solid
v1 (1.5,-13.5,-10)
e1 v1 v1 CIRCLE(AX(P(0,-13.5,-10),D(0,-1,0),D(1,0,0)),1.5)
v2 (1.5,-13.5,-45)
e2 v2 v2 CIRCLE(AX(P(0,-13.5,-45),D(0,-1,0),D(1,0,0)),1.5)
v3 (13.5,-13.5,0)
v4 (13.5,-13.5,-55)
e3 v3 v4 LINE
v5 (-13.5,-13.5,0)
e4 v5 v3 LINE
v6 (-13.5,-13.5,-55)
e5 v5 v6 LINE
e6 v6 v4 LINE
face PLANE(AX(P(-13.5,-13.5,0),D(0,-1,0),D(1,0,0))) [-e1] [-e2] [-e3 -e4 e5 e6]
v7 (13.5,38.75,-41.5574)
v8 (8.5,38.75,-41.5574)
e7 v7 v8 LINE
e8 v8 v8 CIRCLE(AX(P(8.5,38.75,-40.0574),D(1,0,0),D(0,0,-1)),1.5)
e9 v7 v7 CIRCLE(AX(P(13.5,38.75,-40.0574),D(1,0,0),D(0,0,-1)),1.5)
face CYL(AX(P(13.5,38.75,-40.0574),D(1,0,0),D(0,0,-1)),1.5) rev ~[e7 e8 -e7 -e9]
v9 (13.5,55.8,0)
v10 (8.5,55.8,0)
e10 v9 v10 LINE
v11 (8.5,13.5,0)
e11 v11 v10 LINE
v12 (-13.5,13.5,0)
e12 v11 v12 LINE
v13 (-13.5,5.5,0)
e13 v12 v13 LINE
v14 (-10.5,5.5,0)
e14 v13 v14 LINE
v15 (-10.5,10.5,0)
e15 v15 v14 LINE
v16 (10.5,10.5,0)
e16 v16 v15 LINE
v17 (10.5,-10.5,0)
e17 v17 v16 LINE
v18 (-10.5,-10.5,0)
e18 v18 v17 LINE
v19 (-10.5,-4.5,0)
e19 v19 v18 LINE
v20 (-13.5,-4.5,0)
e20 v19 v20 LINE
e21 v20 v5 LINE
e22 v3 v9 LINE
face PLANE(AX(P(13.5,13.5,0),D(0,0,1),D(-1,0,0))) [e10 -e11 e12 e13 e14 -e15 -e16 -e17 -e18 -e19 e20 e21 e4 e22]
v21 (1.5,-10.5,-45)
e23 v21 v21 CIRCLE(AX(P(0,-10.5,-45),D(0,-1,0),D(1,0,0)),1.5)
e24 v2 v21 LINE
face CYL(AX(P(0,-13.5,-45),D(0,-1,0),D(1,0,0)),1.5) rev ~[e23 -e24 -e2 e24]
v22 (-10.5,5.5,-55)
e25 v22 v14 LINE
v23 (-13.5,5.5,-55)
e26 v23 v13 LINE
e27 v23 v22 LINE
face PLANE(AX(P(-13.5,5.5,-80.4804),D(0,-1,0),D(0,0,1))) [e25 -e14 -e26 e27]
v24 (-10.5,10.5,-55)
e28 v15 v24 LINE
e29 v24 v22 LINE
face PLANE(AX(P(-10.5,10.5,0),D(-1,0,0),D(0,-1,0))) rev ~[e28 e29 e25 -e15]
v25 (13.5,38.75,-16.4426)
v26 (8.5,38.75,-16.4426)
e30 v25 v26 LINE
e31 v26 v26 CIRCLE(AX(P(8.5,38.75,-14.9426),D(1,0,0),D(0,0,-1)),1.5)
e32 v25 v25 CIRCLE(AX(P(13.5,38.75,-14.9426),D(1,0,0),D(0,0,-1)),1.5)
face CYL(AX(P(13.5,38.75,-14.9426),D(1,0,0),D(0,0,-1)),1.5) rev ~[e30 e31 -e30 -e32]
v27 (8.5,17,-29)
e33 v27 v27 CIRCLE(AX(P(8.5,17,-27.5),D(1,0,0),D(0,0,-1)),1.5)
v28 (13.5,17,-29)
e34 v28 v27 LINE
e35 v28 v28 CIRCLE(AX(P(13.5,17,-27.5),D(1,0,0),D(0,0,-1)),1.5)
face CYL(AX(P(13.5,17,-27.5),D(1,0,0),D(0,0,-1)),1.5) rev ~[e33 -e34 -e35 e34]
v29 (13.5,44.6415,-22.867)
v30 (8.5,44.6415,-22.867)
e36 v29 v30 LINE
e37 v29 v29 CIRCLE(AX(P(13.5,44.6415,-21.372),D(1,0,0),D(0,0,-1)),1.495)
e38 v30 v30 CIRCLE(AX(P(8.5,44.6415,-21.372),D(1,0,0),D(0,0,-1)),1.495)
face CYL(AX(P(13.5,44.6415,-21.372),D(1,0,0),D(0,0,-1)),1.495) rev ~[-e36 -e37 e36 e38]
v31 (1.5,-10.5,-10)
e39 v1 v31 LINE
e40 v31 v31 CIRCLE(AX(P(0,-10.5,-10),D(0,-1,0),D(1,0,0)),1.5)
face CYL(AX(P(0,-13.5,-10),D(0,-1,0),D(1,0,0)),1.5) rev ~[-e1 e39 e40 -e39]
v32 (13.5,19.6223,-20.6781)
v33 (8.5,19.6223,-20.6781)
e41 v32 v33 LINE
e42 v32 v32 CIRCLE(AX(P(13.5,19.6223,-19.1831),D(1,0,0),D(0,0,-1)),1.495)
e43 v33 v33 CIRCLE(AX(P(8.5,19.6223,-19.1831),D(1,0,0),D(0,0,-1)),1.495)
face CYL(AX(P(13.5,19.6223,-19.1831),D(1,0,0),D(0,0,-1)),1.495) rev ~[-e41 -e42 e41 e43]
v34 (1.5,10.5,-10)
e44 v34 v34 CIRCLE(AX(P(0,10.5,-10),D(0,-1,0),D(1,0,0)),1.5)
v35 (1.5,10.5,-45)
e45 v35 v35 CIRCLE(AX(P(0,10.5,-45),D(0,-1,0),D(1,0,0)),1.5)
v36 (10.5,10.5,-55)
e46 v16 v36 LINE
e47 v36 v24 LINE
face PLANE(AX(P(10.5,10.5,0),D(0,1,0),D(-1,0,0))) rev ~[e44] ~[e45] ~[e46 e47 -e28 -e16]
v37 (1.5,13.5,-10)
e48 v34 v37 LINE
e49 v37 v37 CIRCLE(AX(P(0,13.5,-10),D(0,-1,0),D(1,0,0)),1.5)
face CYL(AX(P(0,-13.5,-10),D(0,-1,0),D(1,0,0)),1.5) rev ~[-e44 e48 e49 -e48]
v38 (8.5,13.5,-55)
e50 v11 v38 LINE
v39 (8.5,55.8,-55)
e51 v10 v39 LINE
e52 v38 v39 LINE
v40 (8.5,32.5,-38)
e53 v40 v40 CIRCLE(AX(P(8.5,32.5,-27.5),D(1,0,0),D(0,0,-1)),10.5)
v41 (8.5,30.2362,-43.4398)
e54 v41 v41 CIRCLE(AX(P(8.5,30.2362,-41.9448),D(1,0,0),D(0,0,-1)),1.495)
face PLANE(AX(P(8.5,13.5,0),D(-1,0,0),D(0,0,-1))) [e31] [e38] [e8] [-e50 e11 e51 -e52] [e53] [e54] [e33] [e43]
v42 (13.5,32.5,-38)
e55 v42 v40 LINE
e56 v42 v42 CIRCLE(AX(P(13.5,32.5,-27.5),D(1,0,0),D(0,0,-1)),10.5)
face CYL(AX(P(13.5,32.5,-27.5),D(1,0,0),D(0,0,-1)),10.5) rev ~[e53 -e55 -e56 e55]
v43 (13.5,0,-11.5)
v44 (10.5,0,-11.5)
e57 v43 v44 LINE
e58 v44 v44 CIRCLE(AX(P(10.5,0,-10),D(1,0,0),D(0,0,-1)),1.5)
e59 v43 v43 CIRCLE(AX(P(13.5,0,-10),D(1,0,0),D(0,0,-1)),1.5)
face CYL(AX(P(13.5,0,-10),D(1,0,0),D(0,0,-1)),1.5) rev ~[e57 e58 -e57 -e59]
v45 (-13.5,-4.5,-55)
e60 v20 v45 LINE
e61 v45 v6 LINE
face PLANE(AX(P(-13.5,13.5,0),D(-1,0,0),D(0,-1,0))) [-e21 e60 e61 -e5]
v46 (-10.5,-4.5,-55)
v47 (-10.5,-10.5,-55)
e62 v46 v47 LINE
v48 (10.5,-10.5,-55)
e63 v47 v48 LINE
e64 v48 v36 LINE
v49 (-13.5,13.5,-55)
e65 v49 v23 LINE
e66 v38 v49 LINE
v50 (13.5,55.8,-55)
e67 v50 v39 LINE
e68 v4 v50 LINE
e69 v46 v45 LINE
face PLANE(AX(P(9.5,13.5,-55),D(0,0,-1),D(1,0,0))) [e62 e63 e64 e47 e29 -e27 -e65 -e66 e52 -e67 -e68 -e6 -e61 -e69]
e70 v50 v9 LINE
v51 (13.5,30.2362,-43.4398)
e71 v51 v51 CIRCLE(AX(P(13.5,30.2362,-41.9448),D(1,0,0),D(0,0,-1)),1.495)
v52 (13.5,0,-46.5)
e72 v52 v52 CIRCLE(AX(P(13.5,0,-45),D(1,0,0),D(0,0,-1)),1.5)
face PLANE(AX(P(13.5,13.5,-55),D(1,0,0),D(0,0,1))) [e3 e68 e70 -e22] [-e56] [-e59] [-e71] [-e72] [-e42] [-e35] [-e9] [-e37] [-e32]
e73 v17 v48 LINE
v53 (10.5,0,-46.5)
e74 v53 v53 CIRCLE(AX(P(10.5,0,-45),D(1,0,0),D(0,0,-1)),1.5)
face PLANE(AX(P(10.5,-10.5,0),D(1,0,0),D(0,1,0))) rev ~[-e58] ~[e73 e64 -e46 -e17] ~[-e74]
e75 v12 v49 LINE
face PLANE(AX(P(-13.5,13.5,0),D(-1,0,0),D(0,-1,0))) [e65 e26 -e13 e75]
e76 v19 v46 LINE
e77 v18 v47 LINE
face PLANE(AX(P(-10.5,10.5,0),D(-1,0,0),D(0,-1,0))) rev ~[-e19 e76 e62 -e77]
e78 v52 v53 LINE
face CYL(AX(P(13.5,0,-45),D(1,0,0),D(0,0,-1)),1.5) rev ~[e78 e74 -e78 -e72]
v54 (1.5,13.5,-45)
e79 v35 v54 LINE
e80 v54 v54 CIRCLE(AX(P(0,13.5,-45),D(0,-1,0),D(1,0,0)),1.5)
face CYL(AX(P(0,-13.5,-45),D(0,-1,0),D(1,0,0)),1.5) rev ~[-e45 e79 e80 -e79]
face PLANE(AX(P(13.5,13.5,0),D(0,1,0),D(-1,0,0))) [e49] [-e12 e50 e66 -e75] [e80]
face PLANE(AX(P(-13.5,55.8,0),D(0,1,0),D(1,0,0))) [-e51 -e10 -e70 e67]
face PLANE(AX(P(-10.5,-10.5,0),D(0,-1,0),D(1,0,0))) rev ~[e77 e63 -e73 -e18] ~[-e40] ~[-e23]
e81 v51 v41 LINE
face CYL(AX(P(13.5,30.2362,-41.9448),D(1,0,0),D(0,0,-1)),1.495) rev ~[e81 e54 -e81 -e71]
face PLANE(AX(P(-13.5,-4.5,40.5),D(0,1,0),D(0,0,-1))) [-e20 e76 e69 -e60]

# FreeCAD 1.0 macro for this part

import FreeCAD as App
import Part
import Sketcher


def add_polygon(sketch, points):
    """Adds a closed chain of lines whose ends are joined by coincident constraints."""
    first, n = sketch.GeometryCount, len(points)
    for a, b in zip(points, points[1:] + points[:1]):
        sketch.addGeometry(Part.LineSegment(App.Vector(*a, 0), App.Vector(*b, 0)), False)
    for i in range(n):
        sketch.addConstraint(Sketcher.Constraint("Coincident", first + i, 2, first + (i + 1) % n, 1))

doc = App.newDocument("Part")
body = doc.addObject("PartDesign::Body", "Body")

# Sketch on XY plane
sketch1 = body.newObject("Sketcher::SketchObject", "Sketch")
sketch1.AttachmentSupport = (doc.getObject("XY_Plane"), [""])
sketch1.MapMode = "FlatFace"
add_polygon(sketch1, [(14, -14), (14, 14), (-14, 14), (-14, -14)])  # lines 0-3
add_polygon(sketch1, [(-10, 10), (10, 10), (10, -10), (-10, -10)])  # lines 4-7
sketch1.addConstraint([
    Sketcher.Constraint("Vertical", 0),
    Sketcher.Constraint("Horizontal", 1),
    Sketcher.Constraint("Vertical", 2),
    Sketcher.Constraint("Horizontal", 3),
    Sketcher.Constraint("Horizontal", 4),
    Sketcher.Constraint("Vertical", 5),
    Sketcher.Constraint("Horizontal", 6),
    Sketcher.Constraint("Vertical", 7),
    Sketcher.Constraint("Symmetric", 0, 2, 2, 2, -1, 1),
    Sketcher.Constraint("Symmetric", 4, 2, 6, 2, -1, 1),
    Sketcher.Constraint("Equal", 3, 0),
    Sketcher.Constraint("Equal", 6, 5),
    Sketcher.Constraint("DistanceX", 4, 1, 4, 2, 21.0),
    Sketcher.Constraint("DistanceX", 4, 2, 0, 2, 3.0),
])
pad1 = body.newObject("PartDesign::Pad", "Pad")
pad1.Profile = sketch1
pad1.Length = 55
pad1.Reversed = True

# Sketch on YZ plane
sketch2 = body.newObject("Sketcher::SketchObject", "Sketch001")
sketch2.AttachmentSupport = (doc.getObject("YZ_Plane"), [""])
sketch2.MapMode = "FlatFace"
sketch2.AttachmentOffset = App.Placement(App.Vector(0, 0, -13.5), App.Rotation())
add_polygon(sketch2, [(6, 40), (6, -80), (-4, -80), (-4, 40)])  # lines 0-3
sketch2.addConstraint([
    Sketcher.Constraint("Vertical", 0),
    Sketcher.Constraint("Horizontal", 1),
    Sketcher.Constraint("Vertical", 2),
    Sketcher.Constraint("Horizontal", 3),
    Sketcher.Constraint("DistanceX", 1, 2, 1, 1, 10.0),
    Sketcher.Constraint("DistanceX", -1, 1, 0, 2, 5.5),
    Sketcher.Constraint("DistanceY", -1, 1, 2, 2, 40.5),
    Sketcher.Constraint("DistanceY", 0, 2, 0, 1, 120.9804),
])
pocket1 = body.newObject("PartDesign::Pocket", "Pocket")
pocket1.Profile = sketch2
pocket1.Length = 15.3125
pocket1.Reversed = True

# Sketch on XZ plane
sketch3 = body.newObject("Sketcher::SketchObject", "Sketch002")
sketch3.AttachmentSupport = (doc.getObject("XZ_Plane"), [""])
sketch3.MapMode = "FlatFace"
sketch3.AttachmentOffset = App.Placement(App.Vector(0, 0, -13.5), App.Rotation())
add_polygon(sketch3, [(8, 0), (14, 0), (14, -55), (8, -55)])  # lines 0-3
sketch3.addConstraint([
    Sketcher.Constraint("Horizontal", 0),
    Sketcher.Constraint("Vertical", 1),
    Sketcher.Constraint("Horizontal", 2),
    Sketcher.Constraint("Vertical", 3),
    Sketcher.Constraint("PointOnObject", 0, 2, -1),
    Sketcher.Constraint("DistanceX", 0, 1, 0, 2, 5.0),
    Sketcher.Constraint("DistanceY", 1, 2, 1, 1, 55.0),
    Sketcher.Constraint("DistanceX", -1, 1, 0, 2, 13.5),
])
pad2 = body.newObject("PartDesign::Pad", "Pad001")
pad2.Profile = sketch3
pad2.Length = 42.3
pad2.Reversed = True

# Sketch on YZ plane
sketch4 = body.newObject("Sketcher::SketchObject", "Sketch003")
sketch4.AttachmentSupport = (doc.getObject("YZ_Plane"), [""])
sketch4.MapMode = "FlatFace"
sketch4.AttachmentOffset = App.Placement(App.Vector(0, 0, 13.5), App.Rotation())
sketch4.addGeometry(Part.Circle(App.Vector(32.5, -27.5, 0), App.Vector(0, 0, 1), 3), False)
sketch4.addConstraint([
    Sketcher.Constraint("Diameter", 0, 6.0),
    Sketcher.Constraint("DistanceX", -1, 1, 0, 3, 32.5),
    Sketcher.Constraint("DistanceY", 0, 3, -1, 1, 27.5),
])
pocket2 = body.newObject("PartDesign::Pocket", "Pocket001")
pocket2.Profile = sketch4
pocket2.Length = 42.3

# Sketch on YZ plane
sketch5 = body.newObject("Sketcher::SketchObject", "Sketch004")
sketch5.AttachmentSupport = (doc.getObject("YZ_Plane"), [""])
sketch5.MapMode = "FlatFace"
sketch5.AttachmentOffset = App.Placement(App.Vector(0, 0, 13.5), App.Rotation())
sketch5.addGeometry([
    Part.Circle(App.Vector(32.5, -27.5, 0), App.Vector(0, 0, 1), 10.5),
    Part.Circle(App.Vector(32.5, -27.5, 0), App.Vector(0, 0, 1), 3),
], False)
sketch5.addConstraint([
    Sketcher.Constraint("Coincident", 1, 3, 0, 3),
    Sketcher.Constraint("Diameter", 0, 21.0),
    Sketcher.Constraint("Diameter", 1, 6.0),
    Sketcher.Constraint("DistanceX", -1, 1, 0, 3, 32.5),
    Sketcher.Constraint("DistanceY", 0, 3, -1, 1, 27.5),
])
pocket3 = body.newObject("PartDesign::Pocket", "Pocket002")
pocket3.Profile = sketch5
pocket3.Length = 42.3

# Sketch on YZ plane
sketch6 = body.newObject("Sketcher::SketchObject", "Sketch005")
sketch6.AttachmentSupport = (doc.getObject("YZ_Plane"), [""])
sketch6.MapMode = "FlatFace"
sketch6.AttachmentOffset = App.Placement(App.Vector(0, 0, 13.5), App.Rotation())
sketch6.addGeometry([
    Part.Circle(App.Vector(17, -27.5, 0), App.Vector(0, 0, 1), 1.5),  # 0
    Part.Circle(App.Vector(19.6, -19.2, 0), App.Vector(0, 0, 1), 1.5),  # 1
    Part.Circle(App.Vector(38.8, -14.9, 0), App.Vector(0, 0, 1), 1.5),  # 2
    Part.Circle(App.Vector(44.6, -21.4, 0), App.Vector(0, 0, 1), 1.5),  # 3
    Part.Circle(App.Vector(38.8, -40.1, 0), App.Vector(0, 0, 1), 1.5),  # 4
    Part.Circle(App.Vector(30.2, -41.9, 0), App.Vector(0, 0, 1), 1.5),  # 5
], False)
sketch6.addConstraint([
    Sketcher.Constraint("Equal", 0, 2),
    Sketcher.Constraint("Equal", 1, 3),
    Sketcher.Constraint("Equal", 2, 4),
    Sketcher.Constraint("Equal", 3, 5),
    Sketcher.Constraint("Vertical", 2, 3, 4, 3),
    Sketcher.Constraint("Diameter", 0, 3.0),
    Sketcher.Constraint("Diameter", 1, 2.99),
    Sketcher.Constraint("DistanceX", -1, 1, 0, 3, 17.0),
    Sketcher.Constraint("DistanceY", 0, 3, -1, 1, 27.5),
    Sketcher.Constraint("DistanceX", -1, 1, 2, 3, 38.75),
    Sketcher.Constraint("DistanceY", 1, 3, -1, 1, 19.183),
    Sketcher.Constraint("DistanceY", 3, 3, -1, 1, 21.372),
    Sketcher.Constraint("DistanceX", 1, 3, 5, 3, 10.614),
    Sketcher.Constraint("DistanceX", -1, 1, 1, 3, 19.6223),
    Sketcher.Constraint("DistanceY", 2, 3, -1, 1, 14.9426),
    Sketcher.Constraint("DistanceX", -1, 1, 3, 3, 44.6415),
    Sketcher.Constraint("DistanceY", 4, 3, -1, 1, 40.0574),
    Sketcher.Constraint("DistanceY", 5, 3, -1, 1, 41.9448),
])
pocket4 = body.newObject("PartDesign::Pocket", "Pocket003")
pocket4.Profile = sketch6
pocket4.Length = 42.3

# Sketch on YZ plane
sketch7 = body.newObject("Sketcher::SketchObject", "Sketch006")
sketch7.AttachmentSupport = (doc.getObject("YZ_Plane"), [""])
sketch7.MapMode = "FlatFace"
sketch7.AttachmentOffset = App.Placement(App.Vector(0, 0, 13.5), App.Rotation())
sketch7.addGeometry([
    Part.Circle(App.Vector(0, -10, 0), App.Vector(0, 0, 1), 1.5),
    Part.Circle(App.Vector(0, -45, 0), App.Vector(0, 0, 1), 1.5),
], False)
sketch7.addConstraint([
    Sketcher.Constraint("Equal", 0, 1),
    Sketcher.Constraint("PointOnObject", 0, 3, -2),
    Sketcher.Constraint("PointOnObject", 1, 3, -2),
    Sketcher.Constraint("Diameter", 0, 3.0),
    Sketcher.Constraint("DistanceY", 0, 3, -1, 1, 10.0),
    Sketcher.Constraint("DistanceY", 1, 3, -1, 1, 45.0),
])
pocket5 = body.newObject("PartDesign::Pocket", "Pocket004")
pocket5.Profile = sketch7
pocket5.Length = 10

# Sketch on XZ plane
sketch8 = body.newObject("Sketcher::SketchObject", "Sketch007")
sketch8.AttachmentSupport = (doc.getObject("XZ_Plane"), [""])
sketch8.MapMode = "FlatFace"
sketch8.AttachmentOffset = App.Placement(App.Vector(0, 0, 13.5), App.Rotation())
sketch8.addGeometry([
    Part.Circle(App.Vector(0, -10, 0), App.Vector(0, 0, 1), 1.5),
    Part.Circle(App.Vector(0, -45, 0), App.Vector(0, 0, 1), 1.5),
], False)
sketch8.addConstraint([
    Sketcher.Constraint("Equal", 0, 1),
    Sketcher.Constraint("PointOnObject", 0, 3, -2),
    Sketcher.Constraint("PointOnObject", 1, 3, -2),
    Sketcher.Constraint("Diameter", 0, 3.0),
    Sketcher.Constraint("DistanceY", 0, 3, -1, 1, 10.0),
    Sketcher.Constraint("DistanceY", 1, 3, -1, 1, 45.0),
])
pocket6 = body.newObject("PartDesign::Pocket", "Pocket005")
pocket6.Profile = sketch8
pocket6.Type = "ThroughAll"

doc.recompute()
